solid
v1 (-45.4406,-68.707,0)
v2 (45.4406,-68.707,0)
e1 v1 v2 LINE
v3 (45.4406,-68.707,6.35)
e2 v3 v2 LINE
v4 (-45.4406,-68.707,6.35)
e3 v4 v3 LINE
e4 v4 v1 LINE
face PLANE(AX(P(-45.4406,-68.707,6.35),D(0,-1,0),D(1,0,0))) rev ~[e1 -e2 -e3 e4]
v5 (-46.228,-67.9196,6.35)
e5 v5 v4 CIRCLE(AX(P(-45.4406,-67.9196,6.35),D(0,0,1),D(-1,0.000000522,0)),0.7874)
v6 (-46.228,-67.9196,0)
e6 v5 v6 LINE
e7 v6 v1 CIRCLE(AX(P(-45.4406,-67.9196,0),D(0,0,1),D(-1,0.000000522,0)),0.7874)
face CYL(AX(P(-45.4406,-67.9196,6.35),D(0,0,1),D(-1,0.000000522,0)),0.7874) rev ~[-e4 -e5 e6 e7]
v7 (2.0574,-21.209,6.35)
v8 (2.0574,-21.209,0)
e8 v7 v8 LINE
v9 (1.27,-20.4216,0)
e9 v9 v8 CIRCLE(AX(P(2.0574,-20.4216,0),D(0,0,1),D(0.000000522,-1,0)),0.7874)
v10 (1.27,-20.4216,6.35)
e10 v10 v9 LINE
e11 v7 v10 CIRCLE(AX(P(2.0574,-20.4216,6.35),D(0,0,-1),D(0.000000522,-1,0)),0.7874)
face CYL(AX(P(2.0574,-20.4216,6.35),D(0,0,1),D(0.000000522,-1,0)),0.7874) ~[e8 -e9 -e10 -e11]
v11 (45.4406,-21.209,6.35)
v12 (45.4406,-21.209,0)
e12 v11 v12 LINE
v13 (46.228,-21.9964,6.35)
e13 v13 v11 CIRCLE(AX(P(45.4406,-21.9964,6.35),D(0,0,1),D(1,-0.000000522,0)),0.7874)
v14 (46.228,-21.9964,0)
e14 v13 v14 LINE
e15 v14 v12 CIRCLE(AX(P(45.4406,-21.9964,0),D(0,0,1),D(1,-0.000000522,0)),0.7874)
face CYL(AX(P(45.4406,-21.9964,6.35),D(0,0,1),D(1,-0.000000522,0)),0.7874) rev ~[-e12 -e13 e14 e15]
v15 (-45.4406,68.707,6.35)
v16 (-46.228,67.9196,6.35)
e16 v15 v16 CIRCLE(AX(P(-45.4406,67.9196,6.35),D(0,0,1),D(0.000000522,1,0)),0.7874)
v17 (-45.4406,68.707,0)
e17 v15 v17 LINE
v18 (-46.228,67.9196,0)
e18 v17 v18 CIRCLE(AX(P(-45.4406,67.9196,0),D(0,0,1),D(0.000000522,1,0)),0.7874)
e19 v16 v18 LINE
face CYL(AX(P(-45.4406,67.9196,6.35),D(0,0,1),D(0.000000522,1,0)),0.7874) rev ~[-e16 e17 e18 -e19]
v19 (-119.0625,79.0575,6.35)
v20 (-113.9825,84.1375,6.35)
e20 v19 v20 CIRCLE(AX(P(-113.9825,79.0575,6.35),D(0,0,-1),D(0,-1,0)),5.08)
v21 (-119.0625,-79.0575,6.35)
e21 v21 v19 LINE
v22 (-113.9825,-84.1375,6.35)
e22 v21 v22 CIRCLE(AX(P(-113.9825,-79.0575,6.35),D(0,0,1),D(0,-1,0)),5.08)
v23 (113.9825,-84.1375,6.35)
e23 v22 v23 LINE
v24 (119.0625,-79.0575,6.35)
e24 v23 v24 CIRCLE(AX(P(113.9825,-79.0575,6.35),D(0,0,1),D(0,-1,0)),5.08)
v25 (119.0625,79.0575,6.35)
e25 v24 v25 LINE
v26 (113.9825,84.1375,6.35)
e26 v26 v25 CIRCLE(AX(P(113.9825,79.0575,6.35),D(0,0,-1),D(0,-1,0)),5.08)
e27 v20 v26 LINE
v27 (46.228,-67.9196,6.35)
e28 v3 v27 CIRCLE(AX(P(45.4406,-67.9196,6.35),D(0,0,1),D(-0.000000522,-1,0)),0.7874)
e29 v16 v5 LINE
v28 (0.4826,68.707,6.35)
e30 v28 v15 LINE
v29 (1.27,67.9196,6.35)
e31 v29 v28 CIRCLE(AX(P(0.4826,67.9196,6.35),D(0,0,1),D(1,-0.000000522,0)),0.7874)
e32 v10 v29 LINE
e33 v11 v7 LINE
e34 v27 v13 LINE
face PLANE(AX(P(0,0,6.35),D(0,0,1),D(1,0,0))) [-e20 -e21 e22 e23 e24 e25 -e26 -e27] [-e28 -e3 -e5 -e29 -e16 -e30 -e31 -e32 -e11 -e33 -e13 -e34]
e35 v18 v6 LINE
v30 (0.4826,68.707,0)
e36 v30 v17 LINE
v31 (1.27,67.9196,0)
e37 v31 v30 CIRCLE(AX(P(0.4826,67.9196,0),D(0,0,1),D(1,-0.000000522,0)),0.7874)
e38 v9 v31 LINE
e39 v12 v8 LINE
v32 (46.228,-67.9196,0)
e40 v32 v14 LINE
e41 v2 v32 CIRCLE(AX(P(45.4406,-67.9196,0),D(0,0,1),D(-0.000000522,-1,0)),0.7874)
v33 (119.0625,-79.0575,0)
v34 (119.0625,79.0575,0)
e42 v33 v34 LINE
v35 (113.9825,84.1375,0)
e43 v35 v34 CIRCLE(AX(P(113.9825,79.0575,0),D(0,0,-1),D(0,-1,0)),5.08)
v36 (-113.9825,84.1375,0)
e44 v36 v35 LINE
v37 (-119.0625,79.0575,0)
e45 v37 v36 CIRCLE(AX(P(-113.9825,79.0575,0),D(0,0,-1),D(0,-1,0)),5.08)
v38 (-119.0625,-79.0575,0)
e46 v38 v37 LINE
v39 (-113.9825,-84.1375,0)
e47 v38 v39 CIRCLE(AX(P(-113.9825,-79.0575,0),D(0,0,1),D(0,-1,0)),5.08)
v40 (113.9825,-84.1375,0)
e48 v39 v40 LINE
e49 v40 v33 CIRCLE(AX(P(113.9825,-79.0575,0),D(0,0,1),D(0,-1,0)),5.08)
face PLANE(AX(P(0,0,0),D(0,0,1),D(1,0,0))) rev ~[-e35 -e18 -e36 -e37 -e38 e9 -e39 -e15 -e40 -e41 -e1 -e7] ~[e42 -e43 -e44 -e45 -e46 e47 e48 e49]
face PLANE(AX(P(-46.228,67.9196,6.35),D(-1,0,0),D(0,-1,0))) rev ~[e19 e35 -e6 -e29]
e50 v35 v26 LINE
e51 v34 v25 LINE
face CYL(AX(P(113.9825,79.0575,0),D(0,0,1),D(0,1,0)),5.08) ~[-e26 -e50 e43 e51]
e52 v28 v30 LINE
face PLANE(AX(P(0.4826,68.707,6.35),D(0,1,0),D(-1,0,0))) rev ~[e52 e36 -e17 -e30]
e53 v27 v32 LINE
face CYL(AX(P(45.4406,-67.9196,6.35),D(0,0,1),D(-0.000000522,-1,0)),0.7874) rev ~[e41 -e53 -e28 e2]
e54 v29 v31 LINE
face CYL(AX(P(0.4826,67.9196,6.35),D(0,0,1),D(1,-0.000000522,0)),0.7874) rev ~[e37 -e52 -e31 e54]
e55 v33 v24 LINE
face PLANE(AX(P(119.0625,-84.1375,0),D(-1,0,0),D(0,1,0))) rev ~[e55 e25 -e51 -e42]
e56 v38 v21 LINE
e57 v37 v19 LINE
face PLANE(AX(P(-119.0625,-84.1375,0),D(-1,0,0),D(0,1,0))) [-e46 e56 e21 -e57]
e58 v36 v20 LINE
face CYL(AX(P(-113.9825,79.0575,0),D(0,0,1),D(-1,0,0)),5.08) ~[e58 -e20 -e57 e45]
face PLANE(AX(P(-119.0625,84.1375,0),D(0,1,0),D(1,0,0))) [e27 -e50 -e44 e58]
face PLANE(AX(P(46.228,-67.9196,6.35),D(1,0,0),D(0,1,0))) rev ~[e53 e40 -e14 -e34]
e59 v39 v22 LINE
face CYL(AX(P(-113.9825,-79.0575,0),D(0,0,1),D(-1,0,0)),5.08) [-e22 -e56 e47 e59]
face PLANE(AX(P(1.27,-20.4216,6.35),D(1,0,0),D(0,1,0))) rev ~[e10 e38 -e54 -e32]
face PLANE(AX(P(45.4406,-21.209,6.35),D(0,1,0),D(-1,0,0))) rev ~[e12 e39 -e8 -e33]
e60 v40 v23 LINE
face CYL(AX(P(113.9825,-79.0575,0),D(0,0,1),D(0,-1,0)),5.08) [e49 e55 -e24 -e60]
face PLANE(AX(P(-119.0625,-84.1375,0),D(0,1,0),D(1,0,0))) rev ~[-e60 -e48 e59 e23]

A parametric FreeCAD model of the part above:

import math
import FreeCAD as App
import Part
import Sketcher
from FreeCAD import Vector
Q = App.Units.Quantity


def edges_at(feature, points):
    """Names of the edges that pass closest to the given points."""
    edges = feature.Shape.Edges
    near = lambda p: min(range(len(edges)), key=lambda i: edges[i].distToShape(Part.Vertex(*p))[0])
    return sorted({f"Edge{near(p) + 1}" for p in points})

doc = App.newDocument("Part")
body = doc.addObject("PartDesign::Body", "Body")

sketch1 = doc.addObject("Sketcher::SketchObject", "Sketch")
body.addObject(sketch1)
sketch1.AttachmentSupport = (doc.XY_Plane, [""])
sketch1.MapMode = "FlatFace"
sketch1.addGeometry(Part.LineSegment(Vector(-119, 84, 0), Vector(-119, -84, 0)), False)
sketch1.addGeometry(Part.LineSegment(Vector(-119, -84, 0), Vector(119, -84, 0)), False)
sketch1.addGeometry(Part.LineSegment(Vector(119, -84, 0), Vector(119, 84, 0)), False)
sketch1.addGeometry(Part.LineSegment(Vector(119, 84, 0), Vector(-119, 84, 0)), False)
sketch1.addConstraint(Sketcher.Constraint("Coincident", 0, 2, 1, 1))
sketch1.addConstraint(Sketcher.Constraint("Coincident", 1, 2, 2, 1))
sketch1.addConstraint(Sketcher.Constraint("Coincident", 2, 2, 3, 1))
sketch1.addConstraint(Sketcher.Constraint("Coincident", 3, 2, 0, 1))
sketch1.addConstraint(Sketcher.Constraint("Vertical", 0))
sketch1.addConstraint(Sketcher.Constraint("Horizontal", 1))
sketch1.addConstraint(Sketcher.Constraint("Vertical", 2))
sketch1.addConstraint(Sketcher.Constraint("Horizontal", 3))
sketch1.addConstraint(Sketcher.Constraint("Symmetric", 0, 2, 2, 2, -1, 1))
sketch1.addConstraint(Sketcher.Constraint("DistanceX", 1, 1, 1, 2, Q("9.375 in")))
sketch1.addConstraint(Sketcher.Constraint("DistanceY", 0, 2, 0, 1, Q("6.625 in")))
pad1 = doc.addObject("PartDesign::Pad", "Pad")
body.addObject(pad1)
pad1.Profile = sketch1
pad1.Length = Q("0.25 in")

sketch2 = doc.addObject("Sketcher::SketchObject", "Sketch001")
body.addObject(sketch2)
sketch2.AttachmentSupport = (doc.XY_Plane, [""])
sketch2.MapMode = "FlatFace"
sketch2.AttachmentOffset = App.Placement(Vector(0, 0, 0.25 * 25.4), App.Rotation())
sketch2.addGeometry(Part.LineSegment(Vector(0, -22, 0), Vector(0, 67, 0)), False)
sketch2.addGeometry(Part.LineSegment(Vector(0, 67, 0), Vector(-45, 67, 0)), False)
sketch2.addGeometry(Part.LineSegment(Vector(-45, 67, 0), Vector(-45, -67, 0)), False)
sketch2.addGeometry(Part.LineSegment(Vector(-45, -67, 0), Vector(45, -67, 0)), False)
sketch2.addGeometry(Part.LineSegment(Vector(45, -67, 0), Vector(45, -22, 0)), False)
sketch2.addGeometry(Part.LineSegment(Vector(45, -22, 0), Vector(0, -22, 0)), False)
sketch2.addConstraint(Sketcher.Constraint("Coincident", 0, 2, 1, 1))
sketch2.addConstraint(Sketcher.Constraint("Coincident", 1, 2, 2, 1))
sketch2.addConstraint(Sketcher.Constraint("Coincident", 2, 2, 3, 1))
sketch2.addConstraint(Sketcher.Constraint("Coincident", 3, 2, 4, 1))
sketch2.addConstraint(Sketcher.Constraint("Coincident", 4, 2, 5, 1))
sketch2.addConstraint(Sketcher.Constraint("Coincident", 5, 2, 0, 1))
sketch2.addConstraint(Sketcher.Constraint("Vertical", 0))
sketch2.addConstraint(Sketcher.Constraint("Horizontal", 1))
sketch2.addConstraint(Sketcher.Constraint("Vertical", 2))
sketch2.addConstraint(Sketcher.Constraint("Horizontal", 3))
sketch2.addConstraint(Sketcher.Constraint("Vertical", 4))
sketch2.addConstraint(Sketcher.Constraint("Horizontal", 5))
sketch2.addConstraint(Sketcher.Constraint("Symmetric", 1, 2, 3, 2, -1, 1))
sketch2.addConstraint(Sketcher.Constraint("PointOnObject", 0, 2, -2))
sketch2.addConstraint(Sketcher.Constraint("Equal", 3, 0))
sketch2.addConstraint(Sketcher.Constraint("Equal", 5, 4))
sketch2.addConstraint(Sketcher.Constraint("DistanceX", 1, 2, 1, 1, Q("1.77 in")))
pocket1 = doc.addObject("PartDesign::Pocket", "Pocket")
body.addObject(pocket1)
pocket1.Profile = sketch2
pocket1.Length = Q("1 in")

sketch3 = doc.addObject("Sketcher::SketchObject", "Sketch002")
body.addObject(sketch3)
sketch3.AttachmentSupport = (doc.XY_Plane, [""])
sketch3.MapMode = "FlatFace"
sketch3.AttachmentOffset = App.Placement(Vector(0, 0, 0.25 * 25.4), App.Rotation())
sketch3.addGeometry(Part.LineSegment(Vector(0, -22, 0), Vector(0, 67, 0)), False)
sketch3.addGeometry(Part.LineSegment(Vector(0, 67, 0), Vector(-45, 67, 0)), False)
sketch3.addGeometry(Part.LineSegment(Vector(-45, 67, 0), Vector(-45, -67, 0)), False)
sketch3.addGeometry(Part.LineSegment(Vector(-45, -67, 0), Vector(45, -67, 0)), False)
sketch3.addGeometry(Part.LineSegment(Vector(45, -67, 0), Vector(45, -22, 0)), False)
sketch3.addGeometry(Part.LineSegment(Vector(45, -22, 0), Vector(0, -22, 0)), False)
sketch3.addConstraint(Sketcher.Constraint("Coincident", 0, 2, 1, 1))
sketch3.addConstraint(Sketcher.Constraint("Coincident", 1, 2, 2, 1))
sketch3.addConstraint(Sketcher.Constraint("Coincident", 2, 2, 3, 1))
sketch3.addConstraint(Sketcher.Constraint("Coincident", 3, 2, 4, 1))
sketch3.addConstraint(Sketcher.Constraint("Coincident", 4, 2, 5, 1))
sketch3.addConstraint(Sketcher.Constraint("Coincident", 5, 2, 0, 1))
sketch3.addConstraint(Sketcher.Constraint("Vertical", 0))
sketch3.addConstraint(Sketcher.Constraint("Horizontal", 1))
sketch3.addConstraint(Sketcher.Constraint("Vertical", 2))
sketch3.addConstraint(Sketcher.Constraint("Horizontal", 3))
sketch3.addConstraint(Sketcher.Constraint("Vertical", 4))
sketch3.addConstraint(Sketcher.Constraint("Horizontal", 5))
sketch3.addConstraint(Sketcher.Constraint("Symmetric", 1, 2, 3, 2, -1, 1))
sketch3.addConstraint(Sketcher.Constraint("PointOnObject", 0, 2, -2))
sketch3.addConstraint(Sketcher.Constraint("Equal", 3, 0))
sketch3.addConstraint(Sketcher.Constraint("Equal", 5, 4))
sketch3.addConstraint(Sketcher.Constraint("DistanceX", 1, 2, 1, 1, Q("1.77 in")))
pocket2 = doc.addObject("PartDesign::Pocket", "Pocket001")
body.addObject(pocket2)
pocket2.Profile = sketch3
pocket2.Type = "ThroughAll"

sketch4 = doc.addObject("Sketcher::SketchObject", "Sketch003")
body.addObject(sketch4)
sketch4.AttachmentSupport = (doc.XY_Plane, [""])
sketch4.MapMode = "FlatFace"
sketch4.AttachmentOffset = App.Placement(Vector(0, 0, 0.25 * 25.4), App.Rotation())
sketch4.addGeometry(Part.LineSegment(Vector(1.3, -20.4, 0), Vector(1.3, 67.9, 0)), False)
sketch4.addGeometry(Part.ArcOfCircle(Part.Circle(Vector(0.5, 67.9, 0), Vector(0, 0, 1), 0.8), math.radians(0), math.radians(90)), False)
sketch4.addGeometry(Part.LineSegment(Vector(0.5, 68.7, 0), Vector(-45.4, 68.7, 0)), False)
sketch4.addGeometry(Part.ArcOfCircle(Part.Circle(Vector(-45.4, 67.9, 0), Vector(0, 0, 1), 0.8), math.radians(90), math.radians(180)), False)
sketch4.addGeometry(Part.LineSegment(Vector(-46.2, 67.9, 0), Vector(-46.2, -67.9, 0)), False)
sketch4.addGeometry(Part.ArcOfCircle(Part.Circle(Vector(-45.4, -67.9, 0), Vector(0, 0, 1), 0.8), math.radians(180), math.radians(270)), False)
sketch4.addGeometry(Part.LineSegment(Vector(-45.4, -68.7, 0), Vector(45.4, -68.7, 0)), False)
sketch4.addGeometry(Part.ArcOfCircle(Part.Circle(Vector(45.4, -67.9, 0), Vector(0, 0, 1), 0.8), math.radians(-90), math.radians(0)), False)
sketch4.addGeometry(Part.LineSegment(Vector(46.2, -67.9, 0), Vector(46.2, -22, 0)), False)
sketch4.addGeometry(Part.ArcOfCircle(Part.Circle(Vector(45.4, -22, 0), Vector(0, 0, 1), 0.8), math.radians(0), math.radians(90)), False)
sketch4.addGeometry(Part.LineSegment(Vector(45.4, -21.2, 0), Vector(2.1, -21.2, 0)), False)
sketch4.addGeometry(Part.ArcOfCircle(Part.Circle(Vector(2.1, -20.4, 0), Vector(0, 0, 1), 0.8), math.radians(180), math.radians(270)), False)
sketch4.addConstraint(Sketcher.Constraint("Tangent", 0, 2, 1, 1))
sketch4.addConstraint(Sketcher.Constraint("Tangent", 1, 2, 2, 1))
sketch4.addConstraint(Sketcher.Constraint("Tangent", 2, 2, 3, 1))
sketch4.addConstraint(Sketcher.Constraint("Tangent", 3, 2, 4, 1))
sketch4.addConstraint(Sketcher.Constraint("Tangent", 4, 2, 5, 1))
sketch4.addConstraint(Sketcher.Constraint("Tangent", 5, 2, 6, 1))
sketch4.addConstraint(Sketcher.Constraint("Tangent", 6, 2, 7, 1))
sketch4.addConstraint(Sketcher.Constraint("Tangent", 7, 2, 8, 1))
sketch4.addConstraint(Sketcher.Constraint("Tangent", 8, 2, 9, 1))
sketch4.addConstraint(Sketcher.Constraint("Tangent", 9, 2, 10, 1))
sketch4.addConstraint(Sketcher.Constraint("Tangent", 10, 2, 11, 2))
sketch4.addConstraint(Sketcher.Constraint("Tangent", 11, 1, 0, 1))
sketch4.addConstraint(Sketcher.Constraint("Vertical", 0))
sketch4.addConstraint(Sketcher.Constraint("Horizontal", 2))
sketch4.addConstraint(Sketcher.Constraint("Vertical", 4))
sketch4.addConstraint(Sketcher.Constraint("Horizontal", 6))
sketch4.addConstraint(Sketcher.Constraint("Vertical", 8))
sketch4.addConstraint(Sketcher.Constraint("Horizontal", 10))
sketch4.addConstraint(Sketcher.Constraint("Equal", 1, 3))
sketch4.addConstraint(Sketcher.Constraint("Equal", 3, 5))
sketch4.addConstraint(Sketcher.Constraint("Equal", 5, 7))
sketch4.addConstraint(Sketcher.Constraint("Equal", 7, 9))
sketch4.addConstraint(Sketcher.Constraint("Equal", 9, 11))
sketch4.addConstraint(Sketcher.Constraint("Symmetric", 3, 3, 7, 3, -1, 1))
sketch4.addConstraint(Sketcher.Constraint("Equal", 2, 8))
sketch4.addConstraint(Sketcher.Constraint("Radius", 1, Q("0.031 in")))
sketch4.addConstraint(Sketcher.Constraint("DistanceX", 2, 2, 2, 1, Q("1.808 in")))
sketch4.addConstraint(Sketcher.Constraint("DistanceX", 6, 1, 6, 2, Q("3.578 in")))
sketch4.addConstraint(Sketcher.Constraint("DistanceY", 0, 1, 0, 2, Q("3.478 in")))
pocket3 = doc.addObject("PartDesign::Pocket", "Pocket002")
body.addObject(pocket3)
pocket3.Profile = sketch4
pocket3.Type = "ThroughAll"
doc.recompute()

fillet = doc.addObject("PartDesign::Fillet", "Fillet")
body.addObject(fillet)
fillet.Base = (pocket3, edges_at(pocket3, [
    (-119.062, -84.138, 3.175),
    (-119.062, 84.138, 3.175),
    (119.062, -84.138, 3.175),
    (119.062, 84.138, 3.175),
]))
fillet.Radius = Q("0.2 in")

doc.recompute()
